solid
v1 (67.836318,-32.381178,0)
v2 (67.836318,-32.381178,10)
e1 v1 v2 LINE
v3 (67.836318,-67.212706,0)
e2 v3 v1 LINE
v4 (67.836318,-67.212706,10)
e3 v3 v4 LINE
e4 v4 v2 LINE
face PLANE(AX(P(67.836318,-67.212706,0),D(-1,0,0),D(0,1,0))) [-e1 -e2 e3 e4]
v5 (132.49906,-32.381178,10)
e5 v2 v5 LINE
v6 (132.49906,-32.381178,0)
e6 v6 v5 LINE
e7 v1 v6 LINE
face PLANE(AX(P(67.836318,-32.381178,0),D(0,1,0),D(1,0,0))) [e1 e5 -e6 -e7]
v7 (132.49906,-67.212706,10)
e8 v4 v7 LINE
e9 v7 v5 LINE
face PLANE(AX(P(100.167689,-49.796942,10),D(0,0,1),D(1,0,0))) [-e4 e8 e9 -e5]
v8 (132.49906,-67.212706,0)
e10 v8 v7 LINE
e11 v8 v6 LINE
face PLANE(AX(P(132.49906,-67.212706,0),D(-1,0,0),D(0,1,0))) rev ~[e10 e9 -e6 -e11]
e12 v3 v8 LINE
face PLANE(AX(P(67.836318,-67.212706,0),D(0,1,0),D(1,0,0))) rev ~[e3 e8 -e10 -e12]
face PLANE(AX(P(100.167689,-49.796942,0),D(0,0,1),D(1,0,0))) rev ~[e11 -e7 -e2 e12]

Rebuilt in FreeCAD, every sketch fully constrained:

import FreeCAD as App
import Part
import Sketcher

doc = App.newDocument("Part")
body = doc.addObject("PartDesign::Body", "Body")

# Sketch on XY plane
sketch1 = doc.addObject("Sketcher::SketchObject", "Sketch")
body.addObject(sketch1)
sketch1.AttachmentSupport = (doc.XY_Plane, [""])
sketch1.MapMode = "FlatFace"
sketch1.addGeometry(Part.Circle(App.Vector(130.1, -64.8, 0), App.Vector(0, 0, 1), 0.5), False)
sketch1.addConstraint(Sketcher.Constraint("Diameter", 0, 1.0))
sketch1.addConstraint(Sketcher.Constraint("DistanceX", -1, 1, 0, 3, 130.060043))
sketch1.addConstraint(Sketcher.Constraint("DistanceY", 0, 3, -1, 1, 64.785744))
pad1 = doc.addObject("PartDesign::Pad", "Pad")
body.addObject(pad1)
pad1.Profile = sketch1
pad1.Length = 10
body2 = doc.addObject("PartDesign::Body", "Body001")

# Sketch on XY plane
sketch2 = doc.addObject("Sketcher::SketchObject", "Sketch001")
body2.addObject(sketch2)
sketch2.AttachmentSupport = (doc.getObject("XY_Plane001"), [""])
sketch2.MapMode = "FlatFace"
sketch2.addGeometry(Part.Circle(App.Vector(70.8, -64.8, 0), App.Vector(0, 0, 1), 0.5), False)
sketch2.addConstraint(Sketcher.Constraint("Diameter", 0, 1.0))
sketch2.addConstraint(Sketcher.Constraint("DistanceY", 0, 3, -1, 1, 64.7696))
sketch2.addConstraint(Sketcher.Constraint("DistanceX", -1, 1, 0, 3, 70.798393))
pad2 = doc.addObject("PartDesign::Pad", "Pad001")
body2.addObject(pad2)
pad2.Profile = sketch2
pad2.Length = 10
body3 = doc.addObject("PartDesign::Body", "Body002")

# Sketch on XY plane
sketch3 = doc.addObject("Sketcher::SketchObject", "Sketch002")
body3.addObject(sketch3)
sketch3.AttachmentSupport = (doc.getObject("XY_Plane002"), [""])
sketch3.MapMode = "FlatFace"
sketch3.addGeometry(Part.Circle(App.Vector(70.8, -35.8, 0), App.Vector(0, 0, 1), 0.5), False)
sketch3.addConstraint(Sketcher.Constraint("Diameter", 0, 1.0))
sketch3.addConstraint(Sketcher.Constraint("DistanceX", -1, 1, 0, 3, 70.79007))
sketch3.addConstraint(Sketcher.Constraint("DistanceY", 0, 3, -1, 1, 35.800797))
pad3 = doc.addObject("PartDesign::Pad", "Pad002")
body3.addObject(pad3)
pad3.Profile = sketch3
pad3.Length = 10
body4 = doc.addObject("PartDesign::Body", "Body003")

# Sketch on XY plane
sketch4 = doc.addObject("Sketcher::SketchObject", "Sketch003")
body4.addObject(sketch4)
sketch4.AttachmentSupport = (doc.getObject("XY_Plane003"), [""])
sketch4.MapMode = "FlatFace"
sketch4.addGeometry(Part.LineSegment(App.Vector(68, -32, 0), App.Vector(68, -67, 0)), False)
sketch4.addGeometry(Part.LineSegment(App.Vector(68, -67, 0), App.Vector(132, -67, 0)), False)
sketch4.addGeometry(Part.LineSegment(App.Vector(132, -67, 0), App.Vector(132, -32, 0)), False)
sketch4.addGeometry(Part.LineSegment(App.Vector(132, -32, 0), App.Vector(68, -32, 0)), False)
sketch4.addConstraint(Sketcher.Constraint("Coincident", 0, 2, 1, 1))
sketch4.addConstraint(Sketcher.Constraint("Coincident", 1, 2, 2, 1))
sketch4.addConstraint(Sketcher.Constraint("Coincident", 2, 2, 3, 1))
sketch4.addConstraint(Sketcher.Constraint("Coincident", 3, 2, 0, 1))
sketch4.addConstraint(Sketcher.Constraint("Vertical", 0))
sketch4.addConstraint(Sketcher.Constraint("Horizontal", 1))
sketch4.addConstraint(Sketcher.Constraint("Vertical", 2))
sketch4.addConstraint(Sketcher.Constraint("Horizontal", 3))
sketch4.addConstraint(Sketcher.Constraint("DistanceX", 1, 1, 1, 2, 64.662742))
sketch4.addConstraint(Sketcher.Constraint("DistanceY", 0, 2, 0, 1, 34.831528))
sketch4.addConstraint(Sketcher.Constraint("DistanceX", -1, 1, 0, 2, 67.836318))
sketch4.addConstraint(Sketcher.Constraint("DistanceY", 0, 2, -1, 1, 67.212706))
pad4 = doc.addObject("PartDesign::Pad", "Pad003")
body4.addObject(pad4)
pad4.Profile = sketch4
pad4.Length = 10
body5 = doc.addObject("PartDesign::Body", "Body004")
body5.AllowCompound = True

# Sketch on XY plane
sketch5 = doc.addObject("Sketcher::SketchObject", "Sketch004")
body5.addObject(sketch5)
sketch5.AttachmentSupport = (doc.getObject("XY_Plane004"), [""])
sketch5.MapMode = "FlatFace"
sketch5.addGeometry(Part.Circle(App.Vector(130.1, -35.6, 0), App.Vector(0, 0, 1), 0.5), False)
sketch5.addConstraint(Sketcher.Constraint("Diameter", 0, 1.0))
sketch5.addConstraint(Sketcher.Constraint("DistanceX", -1, 1, 0, 3, 130.059311))
sketch5.addConstraint(Sketcher.Constraint("DistanceY", 0, 3, -1, 1, 35.555641))
pad5 = doc.addObject("PartDesign::Pad", "Pad004")
body5.addObject(pad5)
pad5.Profile = sketch5
pad5.Length = 10
doc.recompute()

boolean = doc.addObject("PartDesign::Boolean", "Boolean")
body5.addObject(boolean)
boolean.Type = "Fuse"
boolean.addObjects([body])
doc.recompute()

boolean2 = doc.addObject("PartDesign::Boolean", "Boolean001")
body5.addObject(boolean2)
boolean2.Type = "Fuse"
boolean2.addObjects([body2])
doc.recompute()

boolean3 = doc.addObject("PartDesign::Boolean", "Boolean002")
body5.addObject(boolean3)
boolean3.Type = "Fuse"
boolean3.addObjects([body3])
doc.recompute()

boolean4 = doc.addObject("PartDesign::Boolean", "Boolean003")
body5.addObject(boolean4)
boolean4.Type = "Fuse"
boolean4.addObjects([body4])

doc.recompute()
